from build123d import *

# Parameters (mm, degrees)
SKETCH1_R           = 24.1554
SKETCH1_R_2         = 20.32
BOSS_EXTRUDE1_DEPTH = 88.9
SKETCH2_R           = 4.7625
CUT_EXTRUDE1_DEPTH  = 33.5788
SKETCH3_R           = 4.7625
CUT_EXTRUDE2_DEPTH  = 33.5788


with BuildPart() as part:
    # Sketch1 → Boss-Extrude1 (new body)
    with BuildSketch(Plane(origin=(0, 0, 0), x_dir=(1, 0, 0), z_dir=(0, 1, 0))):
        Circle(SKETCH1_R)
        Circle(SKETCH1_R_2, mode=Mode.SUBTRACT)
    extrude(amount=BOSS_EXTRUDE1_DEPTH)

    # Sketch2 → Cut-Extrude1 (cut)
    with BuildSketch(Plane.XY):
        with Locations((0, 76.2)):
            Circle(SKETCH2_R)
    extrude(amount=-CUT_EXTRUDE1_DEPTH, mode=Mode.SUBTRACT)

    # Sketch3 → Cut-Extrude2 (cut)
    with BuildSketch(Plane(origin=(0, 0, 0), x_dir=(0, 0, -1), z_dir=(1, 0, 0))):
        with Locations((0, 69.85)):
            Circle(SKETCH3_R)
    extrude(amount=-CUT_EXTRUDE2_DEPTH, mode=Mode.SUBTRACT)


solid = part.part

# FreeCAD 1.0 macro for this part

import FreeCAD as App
import Part
import Sketcher
Q = App.Units.Quantity

doc = App.newDocument("Part")
body = doc.addObject("PartDesign::Body", "Body")

sketch1 = body.newObject("Sketcher::SketchObject", "Sketch")
sketch1.AttachmentSupport = (doc.getObject("XZ_Plane"), [""])
sketch1.MapMode = "FlatFace"
sketch1.addGeometry(Part.Circle(App.Vector(0, 0, 0), App.Vector(0, 0, 1), 24.1554), False)
sketch1.addGeometry(Part.Circle(App.Vector(0, 0, 0), App.Vector(0, 0, 1), 20.32), False)
sketch1.addConstraint(Sketcher.Constraint("Coincident", 0, 3, -1, 1))
sketch1.addConstraint(Sketcher.Constraint("Coincident", 1, 3, -1, 1))
sketch1.addConstraint(Sketcher.Constraint("Diameter", 1, Q("1.6 in")))
sketch1.addConstraint(Sketcher.Constraint("Diameter", 0, Q("1.902 in")))
pad1 = body.newObject("PartDesign::Pad", "Pad")
pad1.Profile = sketch1
pad1.Length = Q("3.5 in")
pad1.Reversed = True

sketch2 = body.newObject("Sketcher::SketchObject", "Sketch001")
sketch2.AttachmentSupport = (doc.getObject("XY_Plane"), [""])
sketch2.MapMode = "FlatFace"
sketch2.addGeometry(Part.Circle(App.Vector(0, 76.2, 0), App.Vector(0, 0, 1), 4.7625), False)
sketch2.addConstraint(Sketcher.Constraint("PointOnObject", 0, 3, -2))
sketch2.addConstraint(Sketcher.Constraint("Diameter", 0, Q("0.375 in")))
sketch2.addConstraint(Sketcher.Constraint("DistanceY", -1, 1, 0, 3, Q("3 in")))
pocket1 = body.newObject("PartDesign::Pocket", "Pocket")
pocket1.Profile = sketch2
pocket1.Length = Q("1.322 in")

sketch3 = body.newObject("Sketcher::SketchObject", "Sketch002")
sketch3.AttachmentSupport = (doc.getObject("YZ_Plane"), [""])
sketch3.MapMode = "FlatFace"
sketch3.addGeometry(Part.Circle(App.Vector(69.85, 0, 0), App.Vector(0, 0, 1), 4.7625), False)
sketch3.addConstraint(Sketcher.Constraint("PointOnObject", 0, 3, -1))
sketch3.addConstraint(Sketcher.Constraint("Diameter", 0, Q("0.375 in")))
sketch3.addConstraint(Sketcher.Constraint("DistanceX", -1, 1, 0, 3, Q("2.75 in")))
pocket2 = body.newObject("PartDesign::Pocket", "Pocket001")
pocket2.Profile = sketch3
pocket2.Length = Q("1.322 in")

doc.recompute()
